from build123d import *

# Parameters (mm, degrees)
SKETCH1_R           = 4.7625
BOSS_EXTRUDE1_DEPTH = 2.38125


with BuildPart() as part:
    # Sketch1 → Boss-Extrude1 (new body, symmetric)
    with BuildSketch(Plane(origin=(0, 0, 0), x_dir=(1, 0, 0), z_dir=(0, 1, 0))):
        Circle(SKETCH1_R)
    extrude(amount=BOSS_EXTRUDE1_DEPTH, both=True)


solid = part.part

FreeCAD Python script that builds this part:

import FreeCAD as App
import Part
import Sketcher
from FreeCAD import Vector
Q = App.Units.Quantity

doc = App.newDocument("Part")
body = doc.addObject("PartDesign::Body", "Body")

# Sketch on XZ plane
sketch1 = body.newObject("Sketcher::SketchObject", "Sketch")
sketch1.AttachmentSupport = (doc.getObject("XZ_Plane"), [""])
sketch1.MapMode = "FlatFace"
sketch1.addGeometry(Part.Circle(Vector(0, 0, 0), Vector(0, 0, 1), 4.7625), False)
sketch1.addConstraint([
    Sketcher.Constraint("Coincident", 0, 3, -1, 1),
    Sketcher.Constraint("Diameter", 0, Q("0.375 in")),
])
pad1 = body.newObject("PartDesign::Pad", "Pad")
pad1.Profile = sketch1
pad1.Length = Q("0.1875 in")
pad1.Midplane = True

doc.recompute()
